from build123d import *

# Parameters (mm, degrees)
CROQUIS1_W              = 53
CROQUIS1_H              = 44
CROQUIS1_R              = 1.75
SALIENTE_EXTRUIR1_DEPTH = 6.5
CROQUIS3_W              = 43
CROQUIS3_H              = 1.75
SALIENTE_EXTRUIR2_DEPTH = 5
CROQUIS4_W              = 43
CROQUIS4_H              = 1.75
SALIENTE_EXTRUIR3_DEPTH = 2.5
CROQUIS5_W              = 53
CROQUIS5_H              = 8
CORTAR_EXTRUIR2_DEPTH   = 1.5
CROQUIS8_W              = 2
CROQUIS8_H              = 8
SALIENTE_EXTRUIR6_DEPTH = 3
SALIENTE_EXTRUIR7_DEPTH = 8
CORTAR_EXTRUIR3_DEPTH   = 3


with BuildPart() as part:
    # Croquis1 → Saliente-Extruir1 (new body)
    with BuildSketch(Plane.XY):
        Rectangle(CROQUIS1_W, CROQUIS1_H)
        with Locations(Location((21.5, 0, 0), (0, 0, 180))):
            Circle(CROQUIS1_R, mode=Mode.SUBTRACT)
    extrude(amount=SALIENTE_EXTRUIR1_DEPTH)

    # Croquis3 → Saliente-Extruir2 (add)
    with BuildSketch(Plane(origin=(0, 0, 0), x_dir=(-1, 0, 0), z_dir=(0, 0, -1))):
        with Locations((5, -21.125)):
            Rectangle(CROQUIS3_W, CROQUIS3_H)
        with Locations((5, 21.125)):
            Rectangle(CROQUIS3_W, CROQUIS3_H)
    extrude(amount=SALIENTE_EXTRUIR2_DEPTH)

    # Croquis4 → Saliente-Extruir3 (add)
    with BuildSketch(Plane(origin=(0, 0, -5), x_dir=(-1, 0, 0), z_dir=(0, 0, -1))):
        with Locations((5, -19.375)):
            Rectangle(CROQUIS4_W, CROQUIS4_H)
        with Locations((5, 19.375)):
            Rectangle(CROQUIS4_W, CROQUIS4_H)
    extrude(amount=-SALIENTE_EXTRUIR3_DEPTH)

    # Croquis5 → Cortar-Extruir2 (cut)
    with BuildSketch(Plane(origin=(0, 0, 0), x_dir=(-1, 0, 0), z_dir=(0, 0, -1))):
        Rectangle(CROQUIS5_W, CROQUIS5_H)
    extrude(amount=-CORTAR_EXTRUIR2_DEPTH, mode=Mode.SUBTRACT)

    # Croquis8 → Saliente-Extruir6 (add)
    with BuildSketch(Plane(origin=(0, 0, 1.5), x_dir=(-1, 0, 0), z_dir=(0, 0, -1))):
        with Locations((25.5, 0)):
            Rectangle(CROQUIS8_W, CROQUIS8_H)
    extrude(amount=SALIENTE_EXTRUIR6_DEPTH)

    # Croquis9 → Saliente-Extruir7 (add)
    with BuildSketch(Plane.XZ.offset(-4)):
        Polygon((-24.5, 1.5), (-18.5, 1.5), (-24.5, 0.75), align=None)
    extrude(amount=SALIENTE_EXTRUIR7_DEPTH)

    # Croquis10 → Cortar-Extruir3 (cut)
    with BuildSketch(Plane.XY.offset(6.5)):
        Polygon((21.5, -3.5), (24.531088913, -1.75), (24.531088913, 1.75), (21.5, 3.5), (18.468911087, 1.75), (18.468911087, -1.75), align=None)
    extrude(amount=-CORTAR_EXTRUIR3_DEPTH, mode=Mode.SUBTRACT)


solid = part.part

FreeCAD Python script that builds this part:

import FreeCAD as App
import Part
import Sketcher
from FreeCAD import Vector
Q = App.Units.Quantity


def add_polygon(sketch, points):
    """Adds a closed chain of lines whose ends are joined by coincident constraints."""
    first, n = sketch.GeometryCount, len(points)
    for a, b in zip(points, points[1:] + points[:1]):
        sketch.addGeometry(Part.LineSegment(App.Vector(*a, 0), App.Vector(*b, 0)), False)
    for i in range(n):
        sketch.addConstraint(Sketcher.Constraint("Coincident", first + i, 2, first + (i + 1) % n, 1))

doc = App.newDocument("Part")
body = doc.addObject("PartDesign::Body", "Body")

# Sketch on XY plane
sketch1 = doc.addObject("Sketcher::SketchObject", "Sketch")
body.addObject(sketch1)
sketch1.AttachmentSupport = (doc.XY_Plane, [""])
sketch1.MapMode = "FlatFace"
add_polygon(sketch1, [(-26.5, 22), (-26.5, -22), (26.5, -22), (26.5, 22)])  # lines 0-3
sketch1.addGeometry(Part.Circle(Vector(21.5, 0, 0), Vector(0, 0, 1), 1.8), False)  # 4
sketch1.addConstraint(Sketcher.Constraint("Vertical", 0))
sketch1.addConstraint(Sketcher.Constraint("Horizontal", 1))
sketch1.addConstraint(Sketcher.Constraint("Vertical", 2))
sketch1.addConstraint(Sketcher.Constraint("Horizontal", 3))
sketch1.addConstraint(Sketcher.Constraint("Symmetric", 0, 2, 2, 2, -1, 1))
sketch1.addConstraint(Sketcher.Constraint("PointOnObject", 4, 3, -1))
sketch1.addConstraint(Sketcher.Constraint("Diameter", 4, Q("3.5 mm")))
sketch1.addConstraint(Sketcher.Constraint("DistanceX", 1, 1, 1, 2, Q("53 mm")))
sketch1.addConstraint(Sketcher.Constraint("DistanceY", 0, 2, 0, 1, Q("44 mm")))
sketch1.addConstraint(Sketcher.Constraint("DistanceX", 0, 2, 4, 3, Q("48 mm")))
pad1 = doc.addObject("PartDesign::Pad", "Pad")
body.addObject(pad1)
pad1.Profile = sketch1
pad1.Length = 6.5

# Sketch on XY plane
sketch2 = doc.addObject("Sketcher::SketchObject", "Sketch001")
body.addObject(sketch2)
sketch2.AttachmentSupport = (doc.XY_Plane, [""])
sketch2.MapMode = "FlatFace"
add_polygon(sketch2, [(16.5, -20.2), (16.5, -22), (-26.5, -22), (-26.5, -20.2)])  # lines 0-3
add_polygon(sketch2, [(16.5, 22), (16.5, 20.2), (-26.5, 20.2), (-26.5, 22)])  # lines 4-7
sketch2.addConstraint(Sketcher.Constraint("Vertical", 0))
sketch2.addConstraint(Sketcher.Constraint("Horizontal", 1))
sketch2.addConstraint(Sketcher.Constraint("Vertical", 2))
sketch2.addConstraint(Sketcher.Constraint("Horizontal", 3))
sketch2.addConstraint(Sketcher.Constraint("Vertical", 4))
sketch2.addConstraint(Sketcher.Constraint("Horizontal", 5))
sketch2.addConstraint(Sketcher.Constraint("Vertical", 6))
sketch2.addConstraint(Sketcher.Constraint("Horizontal", 7))
sketch2.addConstraint(Sketcher.Constraint("Symmetric", 3, 2, 4, 2, -1))
sketch2.addConstraint(Sketcher.Constraint("Symmetric", 1, 2, 6, 2, -1))
sketch2.addConstraint(Sketcher.Constraint("DistanceX", 1, 2, 1, 1, Q("43 mm")))
sketch2.addConstraint(Sketcher.Constraint("DistanceY", 0, 2, -1, 1, Q("22 mm")))
sketch2.addConstraint(Sketcher.Constraint("DistanceY", 0, 2, 0, 1, Q("1.75 mm")))
sketch2.addConstraint(Sketcher.Constraint("DistanceX", -1, 1, 0, 2, Q("16.5 mm")))
pad2 = doc.addObject("PartDesign::Pad", "Pad001")
body.addObject(pad2)
pad2.Profile = sketch2
pad2.Length = 5
pad2.Reversed = True

# Sketch on XY plane
sketch3 = doc.addObject("Sketcher::SketchObject", "Sketch002")
body.addObject(sketch3)
sketch3.AttachmentSupport = (doc.XY_Plane, [""])
sketch3.MapMode = "FlatFace"
sketch3.AttachmentOffset = App.Placement(Vector(0, 0, -5), App.Rotation())
add_polygon(sketch3, [(16.5, -18.5), (16.5, -20.2), (-26.5, -20.2), (-26.5, -18.5)])  # lines 0-3
add_polygon(sketch3, [(16.5, 20.2), (16.5, 18.5), (-26.5, 18.5), (-26.5, 20.2)])  # lines 4-7
sketch3.addConstraint(Sketcher.Constraint("Vertical", 0))
sketch3.addConstraint(Sketcher.Constraint("Horizontal", 1))
sketch3.addConstraint(Sketcher.Constraint("Vertical", 2))
sketch3.addConstraint(Sketcher.Constraint("Horizontal", 3))
sketch3.addConstraint(Sketcher.Constraint("Vertical", 4))
sketch3.addConstraint(Sketcher.Constraint("Horizontal", 5))
sketch3.addConstraint(Sketcher.Constraint("Vertical", 6))
sketch3.addConstraint(Sketcher.Constraint("Horizontal", 7))
sketch3.addConstraint(Sketcher.Constraint("Symmetric", 3, 2, 4, 2, -1))
sketch3.addConstraint(Sketcher.Constraint("Symmetric", 1, 2, 6, 2, -1))
sketch3.addConstraint(Sketcher.Constraint("DistanceX", 1, 2, 1, 1, Q("43 mm")))
sketch3.addConstraint(Sketcher.Constraint("DistanceY", 3, 2, 4, 2, Q("37 mm")))
sketch3.addConstraint(Sketcher.Constraint("DistanceY", 0, 2, 0, 1, Q("1.75 mm")))
sketch3.addConstraint(Sketcher.Constraint("DistanceX", -1, 1, 0, 2, Q("16.5 mm")))
pad3 = doc.addObject("PartDesign::Pad", "Pad002")
body.addObject(pad3)
pad3.Profile = sketch3
pad3.Length = 2.5

# Sketch on XY plane
sketch4 = doc.addObject("Sketcher::SketchObject", "Sketch003")
body.addObject(sketch4)
sketch4.AttachmentSupport = (doc.XY_Plane, [""])
sketch4.MapMode = "FlatFace"
add_polygon(sketch4, [(26, 4), (26, -4), (-26, -4), (-26, 4)])  # lines 0-3
sketch4.addConstraint(Sketcher.Constraint("Vertical", 0))
sketch4.addConstraint(Sketcher.Constraint("Horizontal", 1))
sketch4.addConstraint(Sketcher.Constraint("Vertical", 2))
sketch4.addConstraint(Sketcher.Constraint("Horizontal", 3))
sketch4.addConstraint(Sketcher.Constraint("Symmetric", 0, 2, 2, 2, -1, 1))
sketch4.addConstraint(Sketcher.Constraint("DistanceX", 1, 2, 1, 1, Q("53 mm")))
sketch4.addConstraint(Sketcher.Constraint("DistanceY", 0, 2, 0, 1, Q("8 mm")))
pocket1 = doc.addObject("PartDesign::Pocket", "Pocket")
body.addObject(pocket1)
pocket1.Profile = sketch4
pocket1.Length = 1.5
pocket1.Reversed = True

# Sketch on XY plane
sketch5 = doc.addObject("Sketcher::SketchObject", "Sketch004")
body.addObject(sketch5)
sketch5.AttachmentSupport = (doc.XY_Plane, [""])
sketch5.MapMode = "FlatFace"
sketch5.AttachmentOffset = App.Placement(Vector(0, 0, 1.5), App.Rotation())
add_polygon(sketch5, [(-24.5, 4), (-24.5, -4), (-26.5, -4), (-26.5, 4)])  # lines 0-3
sketch5.addConstraint(Sketcher.Constraint("Vertical", 0))
sketch5.addConstraint(Sketcher.Constraint("Horizontal", 1))
sketch5.addConstraint(Sketcher.Constraint("Vertical", 2))
sketch5.addConstraint(Sketcher.Constraint("Horizontal", 3))
sketch5.addConstraint(Sketcher.Constraint("DistanceX", 1, 2, 1, 1, Q("2 mm")))
sketch5.addConstraint(Sketcher.Constraint("DistanceY", 0, 2, 0, 1, Q("8 mm")))
sketch5.addConstraint(Sketcher.Constraint("DistanceY", 0, 2, -1, 1, Q("4 mm")))
sketch5.addConstraint(Sketcher.Constraint("DistanceX", 0, 2, -1, 1, Q("24.5 mm")))
pad4 = doc.addObject("PartDesign::Pad", "Pad003")
body.addObject(pad4)
pad4.Profile = sketch5
pad4.Length = 3
pad4.Reversed = True

# Sketch on XZ plane
sketch6 = doc.addObject("Sketcher::SketchObject", "Sketch005")
body.addObject(sketch6)
sketch6.AttachmentSupport = (doc.XZ_Plane, [""])
sketch6.MapMode = "FlatFace"
sketch6.AttachmentOffset = App.Placement(Vector(0, 0, -4), App.Rotation())
add_polygon(sketch6, [(-18.5, 1.5), (-24.5, 1.5), (-24.5, 0.8)])  # lines 0-2
sketch6.addConstraint(Sketcher.Constraint("Horizontal", 0))
sketch6.addConstraint(Sketcher.Constraint("Vertical", 1))
sketch6.addConstraint(Sketcher.Constraint("DistanceX", 0, 2, 0, 1, Q("6 mm")))
sketch6.addConstraint(Sketcher.Constraint("DistanceY", 1, 2, 1, 1, Q("0.75 mm")))
sketch6.addConstraint(Sketcher.Constraint("DistanceX", 0, 2, -1, 1, Q("24.5 mm")))
sketch6.addConstraint(Sketcher.Constraint("DistanceY", -1, 1, 0, 2, Q("1.5 mm")))
pad5 = doc.addObject("PartDesign::Pad", "Pad004")
body.addObject(pad5)
pad5.Profile = sketch6
pad5.Length = 8

# Sketch on XY plane
sketch7 = doc.addObject("Sketcher::SketchObject", "Sketch006")
body.addObject(sketch7)
sketch7.AttachmentSupport = (doc.XY_Plane, [""])
sketch7.MapMode = "FlatFace"
sketch7.AttachmentOffset = App.Placement(Vector(0, 0, 6.5), App.Rotation())
add_polygon(sketch7, [(21.5, -3.5), (24.5, -1.8), (24.5, 1.8), (21.5, 3.5), (18.5, 1.8), (18.5, -1.8)])  # lines 0-5
sketch7.addConstraint(Sketcher.Constraint("Vertical", 1))
sketch7.addConstraint(Sketcher.Constraint("Vertical", 4))
sketch7.addConstraint(Sketcher.Constraint("Symmetric", 2, 2, 5, 2, -1))
sketch7.addConstraint(Sketcher.Constraint("Parallel", 0, 3))
sketch7.addConstraint(Sketcher.Constraint("Parallel", 2, 5))
sketch7.addConstraint(Sketcher.Constraint("Horizontal", 1, 2, 3, 2))
sketch7.addConstraint(Sketcher.Constraint("Horizontal", 0, 2, 4, 2))
sketch7.addConstraint(Sketcher.Constraint("Angle", 0, Q("30 deg")))
sketch7.addConstraint(Sketcher.Constraint("DistanceY", 1, 1, 1, 2, Q("3.5 mm")))
sketch7.addConstraint(Sketcher.Constraint("DistanceY", 5, 2, 2, 2, Q("7 mm")))
sketch7.addConstraint(Sketcher.Constraint("DistanceX", -1, 1, 2, 2, Q("21.5 mm")))
pocket2 = doc.addObject("PartDesign::Pocket", "Pocket001")
body.addObject(pocket2)
pocket2.Profile = sketch7
pocket2.Length = 3

doc.recompute()
